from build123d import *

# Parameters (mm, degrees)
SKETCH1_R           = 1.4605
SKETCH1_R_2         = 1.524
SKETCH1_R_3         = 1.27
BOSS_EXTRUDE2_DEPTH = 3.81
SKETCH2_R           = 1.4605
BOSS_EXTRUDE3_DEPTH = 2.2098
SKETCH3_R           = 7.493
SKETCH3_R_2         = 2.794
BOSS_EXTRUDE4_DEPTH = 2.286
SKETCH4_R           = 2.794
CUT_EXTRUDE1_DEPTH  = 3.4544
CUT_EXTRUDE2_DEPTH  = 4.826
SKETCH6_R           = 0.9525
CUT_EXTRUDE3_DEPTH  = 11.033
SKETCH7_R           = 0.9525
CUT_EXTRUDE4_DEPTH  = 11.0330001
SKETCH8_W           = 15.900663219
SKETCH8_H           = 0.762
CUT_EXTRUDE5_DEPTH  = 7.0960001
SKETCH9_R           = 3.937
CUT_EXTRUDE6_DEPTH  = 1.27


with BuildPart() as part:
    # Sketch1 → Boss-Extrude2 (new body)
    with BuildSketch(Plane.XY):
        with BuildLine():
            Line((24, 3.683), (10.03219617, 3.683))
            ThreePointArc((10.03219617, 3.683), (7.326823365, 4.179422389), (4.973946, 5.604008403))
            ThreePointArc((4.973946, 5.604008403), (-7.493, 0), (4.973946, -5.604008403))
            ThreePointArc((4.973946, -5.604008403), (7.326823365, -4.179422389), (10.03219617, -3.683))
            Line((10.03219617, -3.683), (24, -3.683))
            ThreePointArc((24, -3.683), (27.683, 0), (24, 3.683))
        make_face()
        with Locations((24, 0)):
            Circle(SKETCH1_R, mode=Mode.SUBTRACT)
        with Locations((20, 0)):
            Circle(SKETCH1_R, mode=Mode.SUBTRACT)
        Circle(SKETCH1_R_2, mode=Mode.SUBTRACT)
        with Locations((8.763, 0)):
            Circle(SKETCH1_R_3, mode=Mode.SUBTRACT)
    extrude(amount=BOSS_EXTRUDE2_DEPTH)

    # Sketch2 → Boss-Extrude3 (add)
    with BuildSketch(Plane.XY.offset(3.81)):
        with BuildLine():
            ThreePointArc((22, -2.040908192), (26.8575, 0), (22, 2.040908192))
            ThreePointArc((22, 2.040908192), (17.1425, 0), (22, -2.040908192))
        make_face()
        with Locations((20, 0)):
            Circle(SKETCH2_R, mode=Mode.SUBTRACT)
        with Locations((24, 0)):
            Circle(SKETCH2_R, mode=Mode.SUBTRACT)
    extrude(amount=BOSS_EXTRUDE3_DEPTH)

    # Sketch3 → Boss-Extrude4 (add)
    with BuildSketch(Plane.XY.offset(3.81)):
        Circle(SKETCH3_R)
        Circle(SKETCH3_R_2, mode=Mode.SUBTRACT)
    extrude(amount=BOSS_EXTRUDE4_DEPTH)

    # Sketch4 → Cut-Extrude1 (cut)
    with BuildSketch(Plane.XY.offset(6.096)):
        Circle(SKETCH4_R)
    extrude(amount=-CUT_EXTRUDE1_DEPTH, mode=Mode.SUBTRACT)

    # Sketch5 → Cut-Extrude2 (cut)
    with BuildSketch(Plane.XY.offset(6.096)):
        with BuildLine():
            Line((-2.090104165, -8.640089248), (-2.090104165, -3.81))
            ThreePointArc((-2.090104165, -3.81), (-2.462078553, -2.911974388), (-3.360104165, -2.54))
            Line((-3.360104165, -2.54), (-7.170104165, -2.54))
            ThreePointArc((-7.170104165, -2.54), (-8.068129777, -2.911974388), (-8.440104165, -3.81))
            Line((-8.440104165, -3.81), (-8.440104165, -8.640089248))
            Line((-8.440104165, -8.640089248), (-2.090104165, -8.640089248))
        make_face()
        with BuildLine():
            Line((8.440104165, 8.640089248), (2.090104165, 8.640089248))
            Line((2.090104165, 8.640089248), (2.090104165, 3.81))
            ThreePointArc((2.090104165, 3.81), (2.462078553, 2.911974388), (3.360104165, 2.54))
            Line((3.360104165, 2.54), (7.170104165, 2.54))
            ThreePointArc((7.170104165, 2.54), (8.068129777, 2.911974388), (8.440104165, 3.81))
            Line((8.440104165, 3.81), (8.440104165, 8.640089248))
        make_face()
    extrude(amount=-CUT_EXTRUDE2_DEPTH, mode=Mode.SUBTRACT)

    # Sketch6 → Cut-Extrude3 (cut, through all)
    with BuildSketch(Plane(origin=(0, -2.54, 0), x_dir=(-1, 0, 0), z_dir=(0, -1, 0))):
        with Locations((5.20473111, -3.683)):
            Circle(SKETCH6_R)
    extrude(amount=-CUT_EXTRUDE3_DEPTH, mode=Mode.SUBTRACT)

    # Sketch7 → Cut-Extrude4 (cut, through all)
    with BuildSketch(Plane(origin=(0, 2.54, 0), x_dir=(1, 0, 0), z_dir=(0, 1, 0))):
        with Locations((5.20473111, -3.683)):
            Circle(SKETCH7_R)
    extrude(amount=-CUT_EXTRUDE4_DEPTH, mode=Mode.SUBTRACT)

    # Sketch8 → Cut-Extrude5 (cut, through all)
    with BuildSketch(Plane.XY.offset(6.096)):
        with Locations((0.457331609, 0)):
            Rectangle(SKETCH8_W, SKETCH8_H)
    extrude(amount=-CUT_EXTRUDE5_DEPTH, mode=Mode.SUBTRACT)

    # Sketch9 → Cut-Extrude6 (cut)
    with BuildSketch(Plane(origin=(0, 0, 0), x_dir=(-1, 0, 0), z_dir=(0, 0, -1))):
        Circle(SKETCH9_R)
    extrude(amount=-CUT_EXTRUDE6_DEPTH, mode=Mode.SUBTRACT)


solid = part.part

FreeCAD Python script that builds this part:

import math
import FreeCAD as App
import Part
import Sketcher
from FreeCAD import Vector
Q = App.Units.Quantity


def add_polygon(sketch, points):
    """Adds a closed chain of lines whose ends are joined by coincident constraints."""
    first, n = sketch.GeometryCount, len(points)
    for a, b in zip(points, points[1:] + points[:1]):
        sketch.addGeometry(Part.LineSegment(App.Vector(*a, 0), App.Vector(*b, 0)), False)
    for i in range(n):
        sketch.addConstraint(Sketcher.Constraint("Coincident", first + i, 2, first + (i + 1) % n, 1))

doc = App.newDocument("Part")
body = doc.addObject("PartDesign::Body", "Body")

sketch1 = body.newObject("Sketcher::SketchObject", "Sketch")
sketch1.AttachmentSupport = (doc.getObject("XY_Plane"), [""])
sketch1.MapMode = "FlatFace"
sketch1.addGeometry(Part.LineSegment(Vector(24, 3.7, 0), Vector(10, 3.7, 0)), False)
sketch1.addGeometry(Part.ArcOfCircle(Part.Circle(Vector(10, 11.3, 0), Vector(0, 0, 1), 7.6), math.radians(-132), math.radians(-90)), False)
sketch1.addGeometry(Part.ArcOfCircle(Part.Circle(Vector(0, 0, 0), Vector(0, 0, 1), 7.5), math.radians(48), math.radians(312)), False)
sketch1.addGeometry(Part.ArcOfCircle(Part.Circle(Vector(10, -11.3, 0), Vector(0, 0, 1), 7.6), math.radians(90), math.radians(132)), False)
sketch1.addGeometry(Part.LineSegment(Vector(10, -3.7, 0), Vector(24, -3.7, 0)), False)
sketch1.addGeometry(Part.ArcOfCircle(Part.Circle(Vector(24, 0, 0), Vector(0, 0, 1), 3.7), math.radians(-90), math.radians(90)), False)
sketch1.addGeometry(Part.Circle(Vector(0, 0, 0), Vector(0, 0, 1), 1.5), False)
sketch1.addGeometry(Part.Circle(Vector(8.8, 0, 0), Vector(0, 0, 1), 1.3), False)
sketch1.addGeometry(Part.Circle(Vector(20, 0, 0), Vector(0, 0, 1), 1.5), False)
sketch1.addGeometry(Part.Circle(Vector(24, 0, 0), Vector(0, 0, 1), 1.5), False)
sketch1.addConstraint(Sketcher.Constraint("Tangent", 0, 2, 1, 2))
sketch1.addConstraint(Sketcher.Constraint("Tangent", 1, 1, 2, 1))
sketch1.addConstraint(Sketcher.Constraint("Tangent", 2, 2, 3, 2))
sketch1.addConstraint(Sketcher.Constraint("Tangent", 3, 1, 4, 1))
sketch1.addConstraint(Sketcher.Constraint("Tangent", 4, 2, 5, 1))
sketch1.addConstraint(Sketcher.Constraint("Tangent", 5, 2, 0, 1))
sketch1.addConstraint(Sketcher.Constraint("Horizontal", 0))
sketch1.addConstraint(Sketcher.Constraint("Horizontal", 4))
sketch1.addConstraint(Sketcher.Constraint("Coincident", 2, 3, -1, 1))
sketch1.addConstraint(Sketcher.Constraint("Coincident", 6, 3, -1, 1))
sketch1.addConstraint(Sketcher.Constraint("Coincident", 9, 3, 5, 3))
sketch1.addConstraint(Sketcher.Constraint("Equal", 1, 3))
sketch1.addConstraint(Sketcher.Constraint("Equal", 8, 9))
sketch1.addConstraint(Sketcher.Constraint("PointOnObject", 5, 3, -1))
sketch1.addConstraint(Sketcher.Constraint("PointOnObject", 7, 3, -1))
sketch1.addConstraint(Sketcher.Constraint("PointOnObject", 8, 3, -1))
sketch1.addConstraint(Sketcher.Constraint("Diameter", 7, Q("0.1 in")))
sketch1.addConstraint(Sketcher.Constraint("Radius", 1, Q("0.3 in")))
sketch1.addConstraint(Sketcher.Constraint("Diameter", 6, Q("0.12 in")))
sketch1.addConstraint(Sketcher.Constraint("Diameter", 8, Q("0.115 in")))
sketch1.addConstraint(Sketcher.Constraint("Radius", 2, Q("0.295 in")))
sketch1.addConstraint(Sketcher.Constraint("Radius", 5, Q("0.145 in")))
sketch1.addConstraint(Sketcher.Constraint("DistanceX", -1, 1, 7, 3, Q("0.345 in")))
sketch1.addConstraint(Sketcher.Constraint("DistanceX", -1, 1, 5, 3, 24.0))
sketch1.addConstraint(Sketcher.Constraint("DistanceX", -1, 1, 8, 3, 20.0))
pad1 = body.newObject("PartDesign::Pad", "Pad")
pad1.Profile = sketch1
pad1.Length = Q("0.15 in")

sketch2 = body.newObject("Sketcher::SketchObject", "Sketch001")
sketch2.AttachmentSupport = (doc.getObject("XY_Plane"), [""])
sketch2.MapMode = "FlatFace"
sketch2.AttachmentOffset = App.Placement(Vector(0, 0, 0.15 * 25.4), App.Rotation())
sketch2.addGeometry(Part.ArcOfCircle(Part.Circle(Vector(24, 0, 0), Vector(0, 0, 1), 2.9), math.radians(-134), math.radians(134)), False)
sketch2.addGeometry(Part.ArcOfCircle(Part.Circle(Vector(20, 0, 0), Vector(0, 0, 1), 2.9), math.radians(46), math.radians(314)), False)
sketch2.addGeometry(Part.Circle(Vector(20, 0, 0), Vector(0, 0, 1), 1.5), False)
sketch2.addGeometry(Part.Circle(Vector(24, 0, 0), Vector(0, 0, 1), 1.5), False)
sketch2.addConstraint(Sketcher.Constraint("Coincident", 0, 1, 1, 2))
sketch2.addConstraint(Sketcher.Constraint("Coincident", 1, 1, 0, 2))
sketch2.addConstraint(Sketcher.Constraint("Coincident", 2, 3, 1, 3))
sketch2.addConstraint(Sketcher.Constraint("Coincident", 3, 3, 0, 3))
sketch2.addConstraint(Sketcher.Constraint("Equal", 0, 1))
sketch2.addConstraint(Sketcher.Constraint("Equal", 2, 3))
sketch2.addConstraint(Sketcher.Constraint("Symmetric", 0, 1, 1, 1, -1))
sketch2.addConstraint(Sketcher.Constraint("Diameter", 2, Q("0.115 in")))
sketch2.addConstraint(Sketcher.Constraint("Radius", 0, Q("0.1125 in")))
sketch2.addConstraint(Sketcher.Constraint("DistanceX", -1, 1, 0, 3, 24.0))
sketch2.addConstraint(Sketcher.Constraint("DistanceX", -1, 1, 1, 3, 20.0))
pad2 = body.newObject("PartDesign::Pad", "Pad001")
pad2.Profile = sketch2
pad2.Length = Q("0.087 in")

sketch3 = body.newObject("Sketcher::SketchObject", "Sketch002")
sketch3.AttachmentSupport = (doc.getObject("XY_Plane"), [""])
sketch3.MapMode = "FlatFace"
sketch3.AttachmentOffset = App.Placement(Vector(0, 0, 0.15 * 25.4), App.Rotation())
sketch3.addGeometry(Part.Circle(Vector(0, 0, 0), Vector(0, 0, 1), 7.5), False)
sketch3.addGeometry(Part.Circle(Vector(0, 0, 0), Vector(0, 0, 1), 2.8), False)
sketch3.addConstraint(Sketcher.Constraint("Coincident", 0, 3, -1, 1))
sketch3.addConstraint(Sketcher.Constraint("Coincident", 1, 3, -1, 1))
sketch3.addConstraint(Sketcher.Constraint("Diameter", 0, Q("0.59 in")))
sketch3.addConstraint(Sketcher.Constraint("Diameter", 1, Q("0.22 in")))
pad3 = body.newObject("PartDesign::Pad", "Pad002")
pad3.Profile = sketch3
pad3.Length = Q("0.09 in")

sketch4 = body.newObject("Sketcher::SketchObject", "Sketch003")
sketch4.AttachmentSupport = (doc.getObject("XY_Plane"), [""])
sketch4.MapMode = "FlatFace"
sketch4.AttachmentOffset = App.Placement(Vector(0, 0, 0.24 * 25.4), App.Rotation())
sketch4.addGeometry(Part.Circle(Vector(0, 0, 0), Vector(0, 0, 1), 2.8), False)
sketch4.addConstraint(Sketcher.Constraint("Coincident", 0, 3, -1, 1))
sketch4.addConstraint(Sketcher.Constraint("Diameter", 0, Q("0.22 in")))
pocket1 = body.newObject("PartDesign::Pocket", "Pocket")
pocket1.Profile = sketch4
pocket1.Length = Q("0.136 in")

sketch5 = body.newObject("Sketcher::SketchObject", "Sketch004")
sketch5.AttachmentSupport = (doc.getObject("XY_Plane"), [""])
sketch5.MapMode = "FlatFace"
sketch5.AttachmentOffset = App.Placement(Vector(0, 0, 0.24 * 25.4), App.Rotation())
sketch5.addGeometry(Part.LineSegment(Vector(-2.1, -8.6, 0), Vector(-2.1, -3.8, 0)), False)
sketch5.addGeometry(Part.ArcOfCircle(Part.Circle(Vector(-3.4, -3.8, 0), Vector(0, 0, 1), 1.3), math.radians(0), math.radians(90)), False)
sketch5.addGeometry(Part.LineSegment(Vector(-3.4, -2.5, 0), Vector(-7.2, -2.5, 0)), False)
sketch5.addGeometry(Part.ArcOfCircle(Part.Circle(Vector(-7.2, -3.8, 0), Vector(0, 0, 1), 1.3), math.radians(90), math.radians(180)), False)
sketch5.addGeometry(Part.LineSegment(Vector(-8.4, -3.8, 0), Vector(-8.4, -8.6, 0)), False)
sketch5.addGeometry(Part.LineSegment(Vector(-8.4, -8.6, 0), Vector(-2.1, -8.6, 0)), False)
sketch5.addGeometry(Part.LineSegment(Vector(8.4, 8.6, 0), Vector(2.1, 8.6, 0)), False)
sketch5.addGeometry(Part.LineSegment(Vector(2.1, 8.6, 0), Vector(2.1, 3.8, 0)), False)
sketch5.addGeometry(Part.ArcOfCircle(Part.Circle(Vector(3.4, 3.8, 0), Vector(0, 0, 1), 1.3), math.radians(180), math.radians(270)), False)
sketch5.addGeometry(Part.LineSegment(Vector(3.4, 2.5, 0), Vector(7.2, 2.5, 0)), False)
sketch5.addGeometry(Part.ArcOfCircle(Part.Circle(Vector(7.2, 3.8, 0), Vector(0, 0, 1), 1.3), math.radians(-90), math.radians(0)), False)
sketch5.addGeometry(Part.LineSegment(Vector(8.4, 3.8, 0), Vector(8.4, 8.6, 0)), False)
sketch5.addConstraint(Sketcher.Constraint("Tangent", 0, 2, 1, 1))
sketch5.addConstraint(Sketcher.Constraint("Tangent", 1, 2, 2, 1))
sketch5.addConstraint(Sketcher.Constraint("Tangent", 2, 2, 3, 1))
sketch5.addConstraint(Sketcher.Constraint("Tangent", 3, 2, 4, 1))
sketch5.addConstraint(Sketcher.Constraint("Coincident", 4, 2, 5, 1))
sketch5.addConstraint(Sketcher.Constraint("Coincident", 5, 2, 0, 1))
sketch5.addConstraint(Sketcher.Constraint("Coincident", 6, 2, 7, 1))
sketch5.addConstraint(Sketcher.Constraint("Tangent", 7, 2, 8, 1))
sketch5.addConstraint(Sketcher.Constraint("Tangent", 8, 2, 9, 1))
sketch5.addConstraint(Sketcher.Constraint("Tangent", 9, 2, 10, 1))
sketch5.addConstraint(Sketcher.Constraint("Tangent", 10, 2, 11, 1))
sketch5.addConstraint(Sketcher.Constraint("Coincident", 11, 2, 6, 1))
sketch5.addConstraint(Sketcher.Constraint("Vertical", 0))
sketch5.addConstraint(Sketcher.Constraint("Horizontal", 2))
sketch5.addConstraint(Sketcher.Constraint("Vertical", 4))
sketch5.addConstraint(Sketcher.Constraint("Horizontal", 5))
sketch5.addConstraint(Sketcher.Constraint("Horizontal", 6))
sketch5.addConstraint(Sketcher.Constraint("Vertical", 7))
sketch5.addConstraint(Sketcher.Constraint("Horizontal", 9))
sketch5.addConstraint(Sketcher.Constraint("Vertical", 11))
sketch5.addConstraint(Sketcher.Constraint("Equal", 1, 3))
sketch5.addConstraint(Sketcher.Constraint("Equal", 3, 8))
sketch5.addConstraint(Sketcher.Constraint("Equal", 8, 10))
sketch5.addConstraint(Sketcher.Constraint("Symmetric", 1, 3, 8, 3, -1, 1))
sketch5.addConstraint(Sketcher.Constraint("Symmetric", 4, 2, 11, 2, -1, 1))
sketch5.addConstraint(Sketcher.Constraint("Radius", 1, Q("0.05 in")))
sketch5.addConstraint(Sketcher.Constraint("DistanceX", 2, 2, 2, 1, Q("0.15 in")))
sketch5.addConstraint(Sketcher.Constraint("DistanceY", 1, 2, -1, 1, Q("0.1 in")))
sketch5.addConstraint(Sketcher.Constraint("DistanceY", 0, 1, 0, 2, 4.830089))
sketch5.addConstraint(Sketcher.Constraint("DistanceX", 1, 3, 8, 3, 6.720208))
pocket2 = body.newObject("PartDesign::Pocket", "Pocket001")
pocket2.Profile = sketch5
pocket2.Length = Q("0.19 in")

sketch6 = body.newObject("Sketcher::SketchObject", "Sketch005")
sketch6.AttachmentSupport = (doc.getObject("XZ_Plane"), [""])
sketch6.MapMode = "FlatFace"
sketch6.AttachmentOffset = App.Placement(Vector(0, 0, 0.1 * 25.4), App.Rotation())
sketch6.addGeometry(Part.Circle(Vector(-5.2, 3.7, 0), Vector(0, 0, 1), 1), False)
sketch6.addConstraint(Sketcher.Constraint("Diameter", 0, Q("0.075 in")))
sketch6.addConstraint(Sketcher.Constraint("DistanceY", -1, 1, 0, 3, Q("0.145 in")))
sketch6.addConstraint(Sketcher.Constraint("DistanceX", 0, 3, -1, 1, 5.204731))
pocket3 = body.newObject("PartDesign::Pocket", "Pocket002")
pocket3.Profile = sketch6
pocket3.Type = "ThroughAll"

sketch7 = body.newObject("Sketcher::SketchObject", "Sketch006")
sketch7.AttachmentSupport = (doc.getObject("XZ_Plane"), [""])
sketch7.MapMode = "FlatFace"
sketch7.AttachmentOffset = App.Placement(Vector(0, 0, -0.1 * 25.4), App.Rotation())
sketch7.addGeometry(Part.Circle(Vector(5.2, 3.7, 0), Vector(0, 0, 1), 1), False)
sketch7.addConstraint(Sketcher.Constraint("Diameter", 0, Q("0.075 in")))
sketch7.addConstraint(Sketcher.Constraint("DistanceY", -1, 1, 0, 3, Q("0.145 in")))
sketch7.addConstraint(Sketcher.Constraint("DistanceX", -1, 1, 0, 3, 5.204731))
pocket4 = body.newObject("PartDesign::Pocket", "Pocket003")
pocket4.Profile = sketch7
pocket4.Type = "ThroughAll"
pocket4.Reversed = True

sketch8 = body.newObject("Sketcher::SketchObject", "Sketch007")
sketch8.AttachmentSupport = (doc.getObject("XY_Plane"), [""])
sketch8.MapMode = "FlatFace"
sketch8.AttachmentOffset = App.Placement(Vector(0, 0, 0.24 * 25.4), App.Rotation())
add_polygon(sketch8, [(-7.5, 0.4), (-7.5, -0.4), (8.4, -0.4), (8.4, 0.4)])
sketch8.addConstraint(Sketcher.Constraint("Vertical", 0))
sketch8.addConstraint(Sketcher.Constraint("Horizontal", 1))
sketch8.addConstraint(Sketcher.Constraint("Vertical", 2))
sketch8.addConstraint(Sketcher.Constraint("Horizontal", 3))
sketch8.addConstraint(Sketcher.Constraint("DistanceY", 0, 2, 0, 1, Q("0.03 in")))
sketch8.addConstraint(Sketcher.Constraint("DistanceX", 0, 2, -1, 1, Q("0.295 in")))
sketch8.addConstraint(Sketcher.Constraint("DistanceY", 0, 2, -1, 1, Q("0.015 in")))
sketch8.addConstraint(Sketcher.Constraint("DistanceX", 1, 1, 1, 2, 15.900663))
pocket5 = body.newObject("PartDesign::Pocket", "Pocket004")
pocket5.Profile = sketch8
pocket5.Type = "ThroughAll"

sketch9 = body.newObject("Sketcher::SketchObject", "Sketch008")
sketch9.AttachmentSupport = (doc.getObject("XY_Plane"), [""])
sketch9.MapMode = "FlatFace"
sketch9.addGeometry(Part.Circle(Vector(0, 0, 0), Vector(0, 0, 1), 3.9), False)
sketch9.addConstraint(Sketcher.Constraint("Coincident", 0, 3, -1, 1))
sketch9.addConstraint(Sketcher.Constraint("Diameter", 0, Q("0.31 in")))
pocket6 = body.newObject("PartDesign::Pocket", "Pocket005")
pocket6.Profile = sketch9
pocket6.Length = Q("0.05 in")
pocket6.Reversed = True

doc.recompute()
